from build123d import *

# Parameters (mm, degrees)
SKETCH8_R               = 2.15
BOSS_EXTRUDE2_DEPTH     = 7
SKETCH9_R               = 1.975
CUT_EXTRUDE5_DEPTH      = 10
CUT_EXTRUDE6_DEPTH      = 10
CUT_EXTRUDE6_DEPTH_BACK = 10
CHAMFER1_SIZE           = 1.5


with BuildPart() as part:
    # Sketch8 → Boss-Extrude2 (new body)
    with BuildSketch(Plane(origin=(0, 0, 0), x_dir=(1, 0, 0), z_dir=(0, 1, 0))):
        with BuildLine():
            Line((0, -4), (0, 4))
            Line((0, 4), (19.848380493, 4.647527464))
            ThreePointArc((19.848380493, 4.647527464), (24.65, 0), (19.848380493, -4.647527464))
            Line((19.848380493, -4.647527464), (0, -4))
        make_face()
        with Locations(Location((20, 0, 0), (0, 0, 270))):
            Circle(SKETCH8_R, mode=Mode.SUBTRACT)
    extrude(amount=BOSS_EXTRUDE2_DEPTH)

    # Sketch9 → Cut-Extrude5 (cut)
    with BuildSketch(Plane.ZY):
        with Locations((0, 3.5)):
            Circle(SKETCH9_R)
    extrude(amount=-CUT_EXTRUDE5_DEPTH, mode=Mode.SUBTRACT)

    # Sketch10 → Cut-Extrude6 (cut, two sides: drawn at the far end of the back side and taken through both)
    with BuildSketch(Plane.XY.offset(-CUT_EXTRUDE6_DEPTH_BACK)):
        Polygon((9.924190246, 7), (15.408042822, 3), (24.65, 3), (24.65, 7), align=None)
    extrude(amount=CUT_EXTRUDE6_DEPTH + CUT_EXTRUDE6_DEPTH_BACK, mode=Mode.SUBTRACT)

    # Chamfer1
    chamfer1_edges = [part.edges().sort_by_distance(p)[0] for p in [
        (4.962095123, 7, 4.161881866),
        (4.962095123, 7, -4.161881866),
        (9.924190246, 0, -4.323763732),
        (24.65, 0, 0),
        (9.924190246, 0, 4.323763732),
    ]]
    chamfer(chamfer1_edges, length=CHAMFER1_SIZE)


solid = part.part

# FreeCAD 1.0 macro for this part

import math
import FreeCAD as App
import Part
import Sketcher

V = App.Vector
Q = App.Units.Quantity


def edges_at(feature, points):
    """Names of the edges that pass closest to the given points."""
    edges = feature.Shape.Edges
    near = lambda p: min(range(len(edges)), key=lambda i: edges[i].distToShape(Part.Vertex(*p))[0])
    return sorted({f"Edge{near(p) + 1}" for p in points})


def add_polygon(sketch, points):
    """Adds a closed chain of lines whose ends are joined by coincident constraints."""
    first, n = sketch.GeometryCount, len(points)
    for a, b in zip(points, points[1:] + points[:1]):
        sketch.addGeometry(Part.LineSegment(App.Vector(*a, 0), App.Vector(*b, 0)), False)
    for i in range(n):
        sketch.addConstraint(Sketcher.Constraint("Coincident", first + i, 2, first + (i + 1) % n, 1))

doc = App.newDocument("Part")
params = doc.addObject("Spreadsheet::Sheet", "Params")
for row, (alias, value) in enumerate([
    ("sketch1_diameter", "4.3 mm"),
    ("sketch1_height", "8 mm"),
    ("sketch1_radius", "4.65 mm"),
    ("pad1_length", "7 mm"),
    ("sketch2_diameter", "3.95 mm"),
    ("pocket1_length", "10 mm"),
    ("sketch3_height", "4 mm"),
    ("chamfer_size", "1.5 mm"),
], start=1):
    params.set(f"A{row}", alias)
    params.set(f"B{row}", "=" + value)
    params.setAlias(f"B{row}", alias)

body = doc.addObject("PartDesign::Body", "Body")

sketch1 = body.newObject("Sketcher::SketchObject", "Sketch")
sketch1.AttachmentSupport = (doc.getObject("XZ_Plane"), [""])
sketch1.MapMode = "FlatFace"
sketch1.addGeometry([
    Part.LineSegment(V(0, -4, 0), V(0, 4, 0)),
    Part.LineSegment(V(0, 4, 0), V(19.8, 4.6, 0)),
    Part.ArcOfCircle(Part.Circle(V(20, 0, 0), V(0, 0, 1), 4.7), math.radians(-92), math.radians(92)),
    Part.LineSegment(V(19.8, -4.6, 0), V(0, -4, 0)),
    Part.Circle(V(20, 0, 0), V(0, 0, 1), 2.1),
], False)
sketch1.addConstraint([
    Sketcher.Constraint("Coincident", 0, 2, 1, 1),
    Sketcher.Constraint("Tangent", 1, 2, 2, 2),
    Sketcher.Constraint("Tangent", 2, 1, 3, 1),
    Sketcher.Constraint("Coincident", 3, 2, 0, 1),
    Sketcher.Constraint("Vertical", 0),
    Sketcher.Constraint("Coincident", 4, 3, 2, 3),
    Sketcher.Constraint("Symmetric", 0, 2, 3, 2, -1, 1),
    Sketcher.Constraint("PointOnObject", 2, 3, -1),
    Sketcher.Constraint("Diameter", 4, Q("4.3 mm")),
    Sketcher.Constraint("DistanceY", 0, 1, 0, 2, Q("8 mm")),
    Sketcher.Constraint("Radius", 2, Q("4.65 mm")),
    Sketcher.Constraint("DistanceX", -1, 1, 2, 3, Q("20 mm")),
])
sketch1.setExpression("Constraints[8]", "Params.sketch1_diameter")
sketch1.setExpression("Constraints[9]", "Params.sketch1_height")
sketch1.setExpression("Constraints[10]", "Params.sketch1_radius")
pad1 = body.newObject("PartDesign::Pad", "Pad")
pad1.Profile = sketch1
pad1.setExpression("Length", "Params.pad1_length")
pad1.Reversed = True

sketch2 = body.newObject("Sketcher::SketchObject", "Sketch001")
sketch2.AttachmentSupport = (doc.getObject("YZ_Plane"), [""])
sketch2.MapMode = "FlatFace"
sketch2.addGeometry(Part.Circle(V(3.5, 0, 0), V(0, 0, 1), 2), False)
sketch2.addConstraint([
    Sketcher.Constraint("PointOnObject", 0, 3, -1),
    Sketcher.Constraint("Diameter", 0, Q("3.95 mm")),
    Sketcher.Constraint("DistanceX", -1, 1, 0, 3, Q("3.5 mm")),
])
sketch2.setExpression("Constraints[1]", "Params.sketch2_diameter")
pocket1 = body.newObject("PartDesign::Pocket", "Pocket")
pocket1.Profile = sketch2
pocket1.setExpression("Length", "Params.pocket1_length")
pocket1.Reversed = True

sketch3 = body.newObject("Sketcher::SketchObject", "Sketch002")
sketch3.AttachmentSupport = (doc.getObject("XY_Plane"), [""])
sketch3.MapMode = "FlatFace"
add_polygon(sketch3, [(9.9, 7), (15.4, 3), (24.6, 3), (24.6, 7)])
sketch3.addConstraint([
    Sketcher.Constraint("Horizontal", 1),
    Sketcher.Constraint("Vertical", 2),
    Sketcher.Constraint("Horizontal", 3),
    Sketcher.Constraint("DistanceY", 2, 1, 2, 2, Q("4 mm")),
    Sketcher.Constraint("DistanceY", -1, 1, 0, 2, Q("3 mm")),
    Sketcher.Constraint("DistanceX", -1, 1, 1, 2, Q("24.65 mm")),
    Sketcher.Constraint("DistanceX", 3, 2, 3, 1, Q("14.72581 mm")),
    Sketcher.Constraint("DistanceX", 1, 1, 1, 2, Q("9.241957 mm")),
])
sketch3.setExpression("Constraints[7]", "Params.sketch3_height")
pocket2 = body.newObject("PartDesign::Pocket", "Pocket001")
pocket2.Profile = sketch3
pocket2.Type = "ThroughAll"
pocket2.Midplane = True
doc.recompute()

chamfer = body.newObject("PartDesign::Chamfer", "Chamfer")
chamfer.Base = (pocket2, edges_at(pocket2, [
    (4.962, 7, 4.162),
    (4.962, 7, -4.162),
    (9.924, 0, -4.324),
    (24.65, 0, 0),
    (9.924, 0, 4.324),
]))
chamfer.setExpression("Size", "Params.chamfer_size")

doc.recompute()
